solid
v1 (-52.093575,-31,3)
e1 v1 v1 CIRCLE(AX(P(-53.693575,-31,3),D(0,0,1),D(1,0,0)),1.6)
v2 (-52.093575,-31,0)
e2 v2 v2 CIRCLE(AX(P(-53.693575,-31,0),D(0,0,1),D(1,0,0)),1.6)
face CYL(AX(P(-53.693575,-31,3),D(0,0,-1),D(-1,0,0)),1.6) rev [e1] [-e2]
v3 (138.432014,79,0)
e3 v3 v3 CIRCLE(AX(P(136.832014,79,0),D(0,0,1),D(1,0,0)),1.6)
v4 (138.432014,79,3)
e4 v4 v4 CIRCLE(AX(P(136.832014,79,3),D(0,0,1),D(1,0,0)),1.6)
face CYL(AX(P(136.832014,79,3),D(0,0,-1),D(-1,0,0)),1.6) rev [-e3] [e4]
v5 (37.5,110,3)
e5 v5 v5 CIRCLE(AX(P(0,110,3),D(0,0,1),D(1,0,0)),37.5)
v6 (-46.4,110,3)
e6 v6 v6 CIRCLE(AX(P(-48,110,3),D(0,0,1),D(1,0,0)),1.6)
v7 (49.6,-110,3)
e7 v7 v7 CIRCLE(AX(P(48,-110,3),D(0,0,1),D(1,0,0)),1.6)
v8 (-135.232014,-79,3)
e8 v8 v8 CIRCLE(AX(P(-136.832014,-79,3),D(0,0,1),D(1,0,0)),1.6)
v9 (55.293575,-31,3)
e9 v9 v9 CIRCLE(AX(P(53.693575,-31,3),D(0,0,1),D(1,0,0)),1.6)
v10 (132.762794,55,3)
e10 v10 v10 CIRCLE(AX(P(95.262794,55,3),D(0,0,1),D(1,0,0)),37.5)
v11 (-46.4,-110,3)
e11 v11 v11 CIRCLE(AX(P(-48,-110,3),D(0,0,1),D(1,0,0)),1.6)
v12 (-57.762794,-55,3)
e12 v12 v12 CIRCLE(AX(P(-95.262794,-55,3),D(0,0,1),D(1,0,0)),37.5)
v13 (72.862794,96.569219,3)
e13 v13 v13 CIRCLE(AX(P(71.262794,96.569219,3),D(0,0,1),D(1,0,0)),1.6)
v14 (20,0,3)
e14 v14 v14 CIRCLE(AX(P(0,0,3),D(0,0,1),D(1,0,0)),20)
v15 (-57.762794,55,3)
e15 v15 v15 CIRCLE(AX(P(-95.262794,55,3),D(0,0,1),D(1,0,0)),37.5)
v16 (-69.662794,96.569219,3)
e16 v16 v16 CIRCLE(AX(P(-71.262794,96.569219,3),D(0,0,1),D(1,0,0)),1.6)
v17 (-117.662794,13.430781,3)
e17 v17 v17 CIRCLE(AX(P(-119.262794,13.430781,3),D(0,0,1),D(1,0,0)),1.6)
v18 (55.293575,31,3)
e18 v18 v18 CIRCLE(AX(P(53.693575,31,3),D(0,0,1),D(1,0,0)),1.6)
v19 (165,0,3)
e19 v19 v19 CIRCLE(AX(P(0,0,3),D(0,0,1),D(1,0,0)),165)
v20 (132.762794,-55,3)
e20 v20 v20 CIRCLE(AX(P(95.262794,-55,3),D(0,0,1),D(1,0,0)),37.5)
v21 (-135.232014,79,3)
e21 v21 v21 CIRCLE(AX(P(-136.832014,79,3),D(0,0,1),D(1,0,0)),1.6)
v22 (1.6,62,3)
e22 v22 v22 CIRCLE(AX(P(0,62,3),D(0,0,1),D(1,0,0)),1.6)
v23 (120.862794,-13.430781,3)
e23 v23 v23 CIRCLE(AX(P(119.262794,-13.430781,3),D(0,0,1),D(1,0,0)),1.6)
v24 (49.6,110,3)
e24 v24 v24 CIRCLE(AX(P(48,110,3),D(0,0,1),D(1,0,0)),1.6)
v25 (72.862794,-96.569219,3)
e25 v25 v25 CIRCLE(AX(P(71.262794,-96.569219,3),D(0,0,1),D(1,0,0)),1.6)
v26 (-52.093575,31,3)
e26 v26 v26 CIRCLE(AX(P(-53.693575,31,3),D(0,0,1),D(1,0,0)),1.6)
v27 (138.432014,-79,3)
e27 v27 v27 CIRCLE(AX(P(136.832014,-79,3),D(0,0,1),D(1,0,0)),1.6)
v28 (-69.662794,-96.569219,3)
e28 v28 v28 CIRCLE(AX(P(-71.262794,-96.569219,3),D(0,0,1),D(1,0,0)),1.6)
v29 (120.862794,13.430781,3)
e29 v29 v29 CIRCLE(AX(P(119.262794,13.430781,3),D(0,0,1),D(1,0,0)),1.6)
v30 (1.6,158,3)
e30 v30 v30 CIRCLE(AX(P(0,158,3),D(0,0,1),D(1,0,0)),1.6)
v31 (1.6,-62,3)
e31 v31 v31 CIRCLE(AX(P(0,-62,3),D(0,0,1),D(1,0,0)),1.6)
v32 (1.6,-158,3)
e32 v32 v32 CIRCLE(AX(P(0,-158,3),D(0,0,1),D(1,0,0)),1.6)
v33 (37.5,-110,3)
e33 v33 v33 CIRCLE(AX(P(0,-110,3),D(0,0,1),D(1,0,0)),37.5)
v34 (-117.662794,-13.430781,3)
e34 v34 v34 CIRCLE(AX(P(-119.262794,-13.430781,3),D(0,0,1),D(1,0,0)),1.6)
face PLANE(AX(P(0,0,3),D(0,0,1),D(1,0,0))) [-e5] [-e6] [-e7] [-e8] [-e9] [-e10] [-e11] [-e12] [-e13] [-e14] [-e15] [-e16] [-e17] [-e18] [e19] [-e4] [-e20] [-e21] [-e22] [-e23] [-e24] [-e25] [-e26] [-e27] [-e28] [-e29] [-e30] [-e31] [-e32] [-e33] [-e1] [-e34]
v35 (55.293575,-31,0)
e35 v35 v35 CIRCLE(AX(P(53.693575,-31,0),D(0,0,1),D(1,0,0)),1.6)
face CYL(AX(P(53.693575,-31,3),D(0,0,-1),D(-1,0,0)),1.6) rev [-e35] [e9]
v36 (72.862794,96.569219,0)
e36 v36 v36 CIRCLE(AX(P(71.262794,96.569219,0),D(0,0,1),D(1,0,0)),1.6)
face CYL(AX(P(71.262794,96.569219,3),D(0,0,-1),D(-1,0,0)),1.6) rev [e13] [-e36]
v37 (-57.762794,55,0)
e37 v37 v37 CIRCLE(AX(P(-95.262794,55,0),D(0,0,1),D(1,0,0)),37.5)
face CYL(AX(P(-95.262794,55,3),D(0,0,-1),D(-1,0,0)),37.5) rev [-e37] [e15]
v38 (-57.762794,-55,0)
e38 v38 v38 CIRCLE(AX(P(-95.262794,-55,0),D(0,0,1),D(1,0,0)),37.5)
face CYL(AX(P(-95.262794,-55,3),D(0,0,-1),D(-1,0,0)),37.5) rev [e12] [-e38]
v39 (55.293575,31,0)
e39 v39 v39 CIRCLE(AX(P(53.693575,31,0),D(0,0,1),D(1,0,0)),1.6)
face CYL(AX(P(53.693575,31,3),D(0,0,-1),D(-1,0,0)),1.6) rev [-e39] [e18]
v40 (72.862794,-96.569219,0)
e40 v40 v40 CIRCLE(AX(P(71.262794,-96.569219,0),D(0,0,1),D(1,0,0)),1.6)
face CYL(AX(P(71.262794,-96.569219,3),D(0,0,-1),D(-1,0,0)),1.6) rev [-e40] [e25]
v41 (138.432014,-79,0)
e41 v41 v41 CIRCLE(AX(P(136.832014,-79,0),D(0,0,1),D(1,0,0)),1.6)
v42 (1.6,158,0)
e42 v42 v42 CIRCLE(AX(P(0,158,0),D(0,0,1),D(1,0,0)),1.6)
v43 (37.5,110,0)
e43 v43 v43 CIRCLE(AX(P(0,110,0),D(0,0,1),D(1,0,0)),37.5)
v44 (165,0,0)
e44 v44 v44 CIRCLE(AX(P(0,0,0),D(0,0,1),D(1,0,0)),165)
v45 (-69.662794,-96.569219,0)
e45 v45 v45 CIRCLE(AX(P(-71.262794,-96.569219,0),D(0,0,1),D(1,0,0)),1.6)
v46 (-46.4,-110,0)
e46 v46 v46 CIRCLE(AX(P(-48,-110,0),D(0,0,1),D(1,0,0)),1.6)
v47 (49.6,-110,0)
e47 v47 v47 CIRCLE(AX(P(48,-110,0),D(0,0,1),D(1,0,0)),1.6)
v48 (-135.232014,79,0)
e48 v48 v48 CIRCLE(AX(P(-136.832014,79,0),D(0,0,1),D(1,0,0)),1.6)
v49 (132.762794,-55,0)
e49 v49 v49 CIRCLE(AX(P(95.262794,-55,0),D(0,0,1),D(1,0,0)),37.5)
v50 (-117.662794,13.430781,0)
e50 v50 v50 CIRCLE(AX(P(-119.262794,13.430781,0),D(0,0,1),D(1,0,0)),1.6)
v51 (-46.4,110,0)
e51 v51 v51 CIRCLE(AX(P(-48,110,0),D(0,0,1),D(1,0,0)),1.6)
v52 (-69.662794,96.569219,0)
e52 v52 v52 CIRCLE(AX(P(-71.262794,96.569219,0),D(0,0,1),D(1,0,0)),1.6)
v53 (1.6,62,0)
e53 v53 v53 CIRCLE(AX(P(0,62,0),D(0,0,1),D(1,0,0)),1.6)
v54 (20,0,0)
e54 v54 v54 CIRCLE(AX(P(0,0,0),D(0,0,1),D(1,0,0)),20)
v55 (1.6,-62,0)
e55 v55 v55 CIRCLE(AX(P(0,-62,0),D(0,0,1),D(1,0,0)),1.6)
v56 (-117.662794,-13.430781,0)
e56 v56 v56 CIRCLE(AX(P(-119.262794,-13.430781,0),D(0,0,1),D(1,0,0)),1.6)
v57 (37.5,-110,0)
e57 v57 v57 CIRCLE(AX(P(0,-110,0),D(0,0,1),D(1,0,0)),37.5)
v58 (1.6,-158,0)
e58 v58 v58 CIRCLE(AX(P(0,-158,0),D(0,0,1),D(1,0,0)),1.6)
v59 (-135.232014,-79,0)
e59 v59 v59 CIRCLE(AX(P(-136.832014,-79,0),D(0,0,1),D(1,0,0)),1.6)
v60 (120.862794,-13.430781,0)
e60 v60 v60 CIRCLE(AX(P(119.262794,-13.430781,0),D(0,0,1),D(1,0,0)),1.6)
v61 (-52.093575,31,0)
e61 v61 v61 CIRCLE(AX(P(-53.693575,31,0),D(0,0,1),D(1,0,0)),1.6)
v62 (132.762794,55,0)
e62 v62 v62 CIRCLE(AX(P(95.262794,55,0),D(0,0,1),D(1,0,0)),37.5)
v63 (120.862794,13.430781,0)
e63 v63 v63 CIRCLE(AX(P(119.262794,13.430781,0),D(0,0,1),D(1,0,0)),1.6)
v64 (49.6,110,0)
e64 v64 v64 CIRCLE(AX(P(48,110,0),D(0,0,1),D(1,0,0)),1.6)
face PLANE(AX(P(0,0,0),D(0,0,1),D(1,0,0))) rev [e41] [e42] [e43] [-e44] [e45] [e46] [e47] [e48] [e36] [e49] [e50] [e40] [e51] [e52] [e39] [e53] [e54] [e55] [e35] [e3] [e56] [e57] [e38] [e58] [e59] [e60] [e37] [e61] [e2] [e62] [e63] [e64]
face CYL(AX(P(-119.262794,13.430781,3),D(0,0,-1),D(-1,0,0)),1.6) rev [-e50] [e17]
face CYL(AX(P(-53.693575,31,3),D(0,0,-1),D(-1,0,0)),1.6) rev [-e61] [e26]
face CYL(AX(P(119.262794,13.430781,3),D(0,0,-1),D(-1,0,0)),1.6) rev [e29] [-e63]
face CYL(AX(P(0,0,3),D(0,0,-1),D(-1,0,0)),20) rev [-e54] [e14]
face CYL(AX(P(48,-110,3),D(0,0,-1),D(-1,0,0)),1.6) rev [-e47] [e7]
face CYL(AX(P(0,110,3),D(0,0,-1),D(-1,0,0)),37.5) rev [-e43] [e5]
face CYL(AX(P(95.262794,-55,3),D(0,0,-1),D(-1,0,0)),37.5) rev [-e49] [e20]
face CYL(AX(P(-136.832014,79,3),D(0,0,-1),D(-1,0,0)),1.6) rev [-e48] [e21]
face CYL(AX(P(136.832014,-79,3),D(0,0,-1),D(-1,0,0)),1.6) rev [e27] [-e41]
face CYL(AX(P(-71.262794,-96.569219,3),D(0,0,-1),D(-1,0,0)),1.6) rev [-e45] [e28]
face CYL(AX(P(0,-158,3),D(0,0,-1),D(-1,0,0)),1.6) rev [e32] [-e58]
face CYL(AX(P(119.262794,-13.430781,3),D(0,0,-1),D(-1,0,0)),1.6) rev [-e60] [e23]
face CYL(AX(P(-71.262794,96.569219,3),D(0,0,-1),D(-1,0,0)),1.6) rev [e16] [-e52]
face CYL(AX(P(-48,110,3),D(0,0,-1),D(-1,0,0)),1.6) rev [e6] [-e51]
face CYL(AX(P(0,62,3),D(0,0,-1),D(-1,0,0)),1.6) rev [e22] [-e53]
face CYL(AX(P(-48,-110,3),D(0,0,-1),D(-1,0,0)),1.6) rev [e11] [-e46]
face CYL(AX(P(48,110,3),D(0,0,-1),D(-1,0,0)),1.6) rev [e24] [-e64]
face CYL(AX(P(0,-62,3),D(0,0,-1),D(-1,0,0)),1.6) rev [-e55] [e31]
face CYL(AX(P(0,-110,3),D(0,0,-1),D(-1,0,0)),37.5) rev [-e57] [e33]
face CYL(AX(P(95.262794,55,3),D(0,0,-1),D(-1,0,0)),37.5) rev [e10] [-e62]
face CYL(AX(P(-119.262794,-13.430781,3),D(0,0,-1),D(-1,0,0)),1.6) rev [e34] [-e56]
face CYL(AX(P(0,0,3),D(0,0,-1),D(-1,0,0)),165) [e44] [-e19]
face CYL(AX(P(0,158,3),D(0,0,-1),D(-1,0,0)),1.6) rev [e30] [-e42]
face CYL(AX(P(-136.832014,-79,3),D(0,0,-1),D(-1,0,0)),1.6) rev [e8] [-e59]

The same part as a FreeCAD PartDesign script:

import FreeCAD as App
import Part
import Sketcher
from FreeCAD import Vector

doc = App.newDocument("Part")
body = doc.addObject("PartDesign::Body", "Body")

sketch1 = doc.addObject("Sketcher::SketchObject", "Sketch")
body.addObject(sketch1)
sketch1.AttachmentSupport = (doc.XY_Plane, [""])
sketch1.MapMode = "FlatFace"
sketch1.addGeometry([
    Part.Circle(Vector(0, 0, 0), Vector(0, 0, 1), 165),
    Part.Circle(Vector(-71.262794, -96.569219, 0), Vector(0, 0, 1), 1.6),
    Part.Circle(Vector(-48, -110, 0), Vector(0, 0, 1), 1.6),
    Part.Circle(Vector(-136.832014, -79, 0), Vector(0, 0, 1), 1.6),
    Part.Circle(Vector(-95.262794, -55, 0), Vector(0, 0, 1), 37.5),
    Part.Circle(Vector(-119.262794, -13.430781, 0), Vector(0, 0, 1), 1.6),
    Part.Circle(Vector(-53.693575, -31, 0), Vector(0, 0, 1), 1.6),
    Part.Circle(Vector(0, -158, 0), Vector(0, 0, 1), 1.6),
    Part.Circle(Vector(0, -110, 0), Vector(0, 0, 1), 37.5),
    Part.Circle(Vector(48, -110, 0), Vector(0, 0, 1), 1.6),
    Part.Circle(Vector(71.262794, -96.569219, 0), Vector(0, 0, 1), 1.6),
    Part.Circle(Vector(0, -62, 0), Vector(0, 0, 1), 1.6),
    Part.Circle(Vector(53.693575, -31, 0), Vector(0, 0, 1), 1.6),
    Part.Circle(Vector(95.262794, -55, 0), Vector(0, 0, 1), 37.5),
    Part.Circle(Vector(136.832014, -79, 0), Vector(0, 0, 1), 1.6),
    Part.Circle(Vector(119.262794, -13.430781, 0), Vector(0, 0, 1), 1.6),
    Part.Circle(Vector(-119.262794, 13.430781, 0), Vector(0, 0, 1), 1.6),
    Part.Circle(Vector(-136.832014, 79, 0), Vector(0, 0, 1), 1.6),
    Part.Circle(Vector(-95.262794, 55, 0), Vector(0, 0, 1), 37.5),
    Part.Circle(Vector(-53.693575, 31, 0), Vector(0, 0, 1), 1.6),
    Part.Circle(Vector(-71.262794, 96.569219, 0), Vector(0, 0, 1), 1.6),
    Part.Circle(Vector(-48, 110, 0), Vector(0, 0, 1), 1.6),
    Part.Circle(Vector(0, 0, 0), Vector(0, 0, 1), 20),
    Part.Circle(Vector(53.693575, 31, 0), Vector(0, 0, 1), 1.6),
    Part.Circle(Vector(0, 62, 0), Vector(0, 0, 1), 1.6),
    Part.Circle(Vector(119.262794, 13.430781, 0), Vector(0, 0, 1), 1.6),
    Part.Circle(Vector(95.262794, 55, 0), Vector(0, 0, 1), 37.5),
    Part.Circle(Vector(136.832014, 79, 0), Vector(0, 0, 1), 1.6),
    Part.Circle(Vector(0, 110, 0), Vector(0, 0, 1), 37.5),
    Part.Circle(Vector(48, 110, 0), Vector(0, 0, 1), 1.6),
    Part.Circle(Vector(0, 158, 0), Vector(0, 0, 1), 1.6),
    Part.Circle(Vector(71.262794, 96.569219, 0), Vector(0, 0, 1), 1.6),
], False)
sketch1.addConstraint([
    Sketcher.Constraint("Coincident", 0, 3, -1, 1),
    Sketcher.Constraint("Coincident", 22, 3, -1, 1),
    Sketcher.Constraint("Equal", 1, 2),
    Sketcher.Constraint("Equal", 2, 3),
    Sketcher.Constraint("Equal", 3, 5),
    Sketcher.Constraint("Equal", 5, 6),
    Sketcher.Constraint("Equal", 6, 7),
    Sketcher.Constraint("Equal", 4, 8),
    Sketcher.Constraint("Equal", 7, 9),
    Sketcher.Constraint("Equal", 9, 10),
    Sketcher.Constraint("Equal", 10, 11),
    Sketcher.Constraint("Equal", 11, 12),
    Sketcher.Constraint("Equal", 8, 13),
    Sketcher.Constraint("Equal", 12, 14),
    Sketcher.Constraint("Equal", 14, 15),
    Sketcher.Constraint("Equal", 15, 16),
    Sketcher.Constraint("Equal", 16, 17),
    Sketcher.Constraint("Equal", 13, 18),
    Sketcher.Constraint("Equal", 17, 19),
    Sketcher.Constraint("Equal", 19, 20),
    Sketcher.Constraint("Equal", 20, 21),
    Sketcher.Constraint("Equal", 21, 23),
    Sketcher.Constraint("Equal", 23, 24),
    Sketcher.Constraint("Equal", 24, 25),
    Sketcher.Constraint("Equal", 18, 26),
    Sketcher.Constraint("Equal", 25, 27),
    Sketcher.Constraint("Equal", 26, 28),
    Sketcher.Constraint("Equal", 27, 29),
    Sketcher.Constraint("Equal", 29, 30),
    Sketcher.Constraint("Equal", 30, 31),
    Sketcher.Constraint("Symmetric", 15, 3, 16, 3, -1, 1),
    Sketcher.Constraint("Symmetric", 14, 3, 17, 3, -1, 1),
    Sketcher.Constraint("Symmetric", 13, 3, 18, 3, -1, 1),
    Sketcher.Constraint("Symmetric", 12, 3, 19, 3, -1, 1),
    Sketcher.Constraint("Symmetric", 10, 3, 20, 3, -1, 1),
    Sketcher.Constraint("Symmetric", 9, 3, 21, 3, -1, 1),
    Sketcher.Constraint("Symmetric", 6, 3, 23, 3, -1, 1),
    Sketcher.Constraint("Symmetric", 11, 3, 24, 3, -1, 1),
    Sketcher.Constraint("Symmetric", 5, 3, 25, 3, -1, 1),
    Sketcher.Constraint("Symmetric", 4, 3, 26, 3, -1, 1),
    Sketcher.Constraint("Symmetric", 3, 3, 27, 3, -1, 1),
    Sketcher.Constraint("Symmetric", 8, 3, 28, 3, -1, 1),
    Sketcher.Constraint("Symmetric", 2, 3, 29, 3, -1, 1),
    Sketcher.Constraint("Symmetric", 7, 3, 30, 3, -1, 1),
    Sketcher.Constraint("Symmetric", 1, 3, 31, 3, -1, 1),
    Sketcher.Constraint("Symmetric", 2, 3, 9, 3, -2),
    Sketcher.Constraint("Symmetric", 1, 3, 10, 3, -2),
    Sketcher.Constraint("Symmetric", 6, 3, 12, 3, -2),
    Sketcher.Constraint("Symmetric", 4, 3, 13, 3, -2),
    Sketcher.Constraint("Symmetric", 3, 3, 14, 3, -2),
    Sketcher.Constraint("Symmetric", 5, 3, 15, 3, -2),
    Sketcher.Constraint("PointOnObject", 7, 3, -2),
    Sketcher.Constraint("PointOnObject", 8, 3, -2),
    Sketcher.Constraint("PointOnObject", 11, 3, -2),
    Sketcher.Constraint("Horizontal", 2, 3, 8, 3),
    Sketcher.Constraint("Diameter", 0, 330.0),
    Sketcher.Constraint("Diameter", 4, 75.0),
    Sketcher.Constraint("Diameter", 22, 40.0),
    Sketcher.Constraint("Diameter", 1, 3.2),
    Sketcher.Constraint("DistanceX", 2, 3, -1, 1, 48.0),
    Sketcher.Constraint("DistanceY", 2, 3, -1, 1, 110.0),
    Sketcher.Constraint("DistanceY", 3, 3, -1, 1, 79.0),
    Sketcher.Constraint("DistanceY", 4, 3, -1, 1, 55.0),
    Sketcher.Constraint("DistanceY", 6, 3, -1, 1, 31.0),
    Sketcher.Constraint("DistanceY", 7, 3, -1, 1, 158.0),
    Sketcher.Constraint("DistanceY", 11, 3, -1, 1, 62.0),
    Sketcher.Constraint("DistanceX", 4, 3, 1, 3, 24.0),
    Sketcher.Constraint("DistanceX", 5, 3, 4, 3, 24.0),
    Sketcher.Constraint("DistanceY", 5, 3, 20, 3, 110.0),
    Sketcher.Constraint("DistanceY", 1, 3, -1, 1, 96.569219),
    Sketcher.Constraint("DistanceX", 3, 3, 1, 3, 65.569219),
    Sketcher.Constraint("DistanceX", 4, 3, 6, 3, 41.569219),
    Sketcher.Constraint("DistanceX", 1, 3, -1, 1, 71.262794),
])
pad1 = doc.addObject("PartDesign::Pad", "Pad")
body.addObject(pad1)
pad1.Profile = sketch1
pad1.Length = 3

doc.recompute()
